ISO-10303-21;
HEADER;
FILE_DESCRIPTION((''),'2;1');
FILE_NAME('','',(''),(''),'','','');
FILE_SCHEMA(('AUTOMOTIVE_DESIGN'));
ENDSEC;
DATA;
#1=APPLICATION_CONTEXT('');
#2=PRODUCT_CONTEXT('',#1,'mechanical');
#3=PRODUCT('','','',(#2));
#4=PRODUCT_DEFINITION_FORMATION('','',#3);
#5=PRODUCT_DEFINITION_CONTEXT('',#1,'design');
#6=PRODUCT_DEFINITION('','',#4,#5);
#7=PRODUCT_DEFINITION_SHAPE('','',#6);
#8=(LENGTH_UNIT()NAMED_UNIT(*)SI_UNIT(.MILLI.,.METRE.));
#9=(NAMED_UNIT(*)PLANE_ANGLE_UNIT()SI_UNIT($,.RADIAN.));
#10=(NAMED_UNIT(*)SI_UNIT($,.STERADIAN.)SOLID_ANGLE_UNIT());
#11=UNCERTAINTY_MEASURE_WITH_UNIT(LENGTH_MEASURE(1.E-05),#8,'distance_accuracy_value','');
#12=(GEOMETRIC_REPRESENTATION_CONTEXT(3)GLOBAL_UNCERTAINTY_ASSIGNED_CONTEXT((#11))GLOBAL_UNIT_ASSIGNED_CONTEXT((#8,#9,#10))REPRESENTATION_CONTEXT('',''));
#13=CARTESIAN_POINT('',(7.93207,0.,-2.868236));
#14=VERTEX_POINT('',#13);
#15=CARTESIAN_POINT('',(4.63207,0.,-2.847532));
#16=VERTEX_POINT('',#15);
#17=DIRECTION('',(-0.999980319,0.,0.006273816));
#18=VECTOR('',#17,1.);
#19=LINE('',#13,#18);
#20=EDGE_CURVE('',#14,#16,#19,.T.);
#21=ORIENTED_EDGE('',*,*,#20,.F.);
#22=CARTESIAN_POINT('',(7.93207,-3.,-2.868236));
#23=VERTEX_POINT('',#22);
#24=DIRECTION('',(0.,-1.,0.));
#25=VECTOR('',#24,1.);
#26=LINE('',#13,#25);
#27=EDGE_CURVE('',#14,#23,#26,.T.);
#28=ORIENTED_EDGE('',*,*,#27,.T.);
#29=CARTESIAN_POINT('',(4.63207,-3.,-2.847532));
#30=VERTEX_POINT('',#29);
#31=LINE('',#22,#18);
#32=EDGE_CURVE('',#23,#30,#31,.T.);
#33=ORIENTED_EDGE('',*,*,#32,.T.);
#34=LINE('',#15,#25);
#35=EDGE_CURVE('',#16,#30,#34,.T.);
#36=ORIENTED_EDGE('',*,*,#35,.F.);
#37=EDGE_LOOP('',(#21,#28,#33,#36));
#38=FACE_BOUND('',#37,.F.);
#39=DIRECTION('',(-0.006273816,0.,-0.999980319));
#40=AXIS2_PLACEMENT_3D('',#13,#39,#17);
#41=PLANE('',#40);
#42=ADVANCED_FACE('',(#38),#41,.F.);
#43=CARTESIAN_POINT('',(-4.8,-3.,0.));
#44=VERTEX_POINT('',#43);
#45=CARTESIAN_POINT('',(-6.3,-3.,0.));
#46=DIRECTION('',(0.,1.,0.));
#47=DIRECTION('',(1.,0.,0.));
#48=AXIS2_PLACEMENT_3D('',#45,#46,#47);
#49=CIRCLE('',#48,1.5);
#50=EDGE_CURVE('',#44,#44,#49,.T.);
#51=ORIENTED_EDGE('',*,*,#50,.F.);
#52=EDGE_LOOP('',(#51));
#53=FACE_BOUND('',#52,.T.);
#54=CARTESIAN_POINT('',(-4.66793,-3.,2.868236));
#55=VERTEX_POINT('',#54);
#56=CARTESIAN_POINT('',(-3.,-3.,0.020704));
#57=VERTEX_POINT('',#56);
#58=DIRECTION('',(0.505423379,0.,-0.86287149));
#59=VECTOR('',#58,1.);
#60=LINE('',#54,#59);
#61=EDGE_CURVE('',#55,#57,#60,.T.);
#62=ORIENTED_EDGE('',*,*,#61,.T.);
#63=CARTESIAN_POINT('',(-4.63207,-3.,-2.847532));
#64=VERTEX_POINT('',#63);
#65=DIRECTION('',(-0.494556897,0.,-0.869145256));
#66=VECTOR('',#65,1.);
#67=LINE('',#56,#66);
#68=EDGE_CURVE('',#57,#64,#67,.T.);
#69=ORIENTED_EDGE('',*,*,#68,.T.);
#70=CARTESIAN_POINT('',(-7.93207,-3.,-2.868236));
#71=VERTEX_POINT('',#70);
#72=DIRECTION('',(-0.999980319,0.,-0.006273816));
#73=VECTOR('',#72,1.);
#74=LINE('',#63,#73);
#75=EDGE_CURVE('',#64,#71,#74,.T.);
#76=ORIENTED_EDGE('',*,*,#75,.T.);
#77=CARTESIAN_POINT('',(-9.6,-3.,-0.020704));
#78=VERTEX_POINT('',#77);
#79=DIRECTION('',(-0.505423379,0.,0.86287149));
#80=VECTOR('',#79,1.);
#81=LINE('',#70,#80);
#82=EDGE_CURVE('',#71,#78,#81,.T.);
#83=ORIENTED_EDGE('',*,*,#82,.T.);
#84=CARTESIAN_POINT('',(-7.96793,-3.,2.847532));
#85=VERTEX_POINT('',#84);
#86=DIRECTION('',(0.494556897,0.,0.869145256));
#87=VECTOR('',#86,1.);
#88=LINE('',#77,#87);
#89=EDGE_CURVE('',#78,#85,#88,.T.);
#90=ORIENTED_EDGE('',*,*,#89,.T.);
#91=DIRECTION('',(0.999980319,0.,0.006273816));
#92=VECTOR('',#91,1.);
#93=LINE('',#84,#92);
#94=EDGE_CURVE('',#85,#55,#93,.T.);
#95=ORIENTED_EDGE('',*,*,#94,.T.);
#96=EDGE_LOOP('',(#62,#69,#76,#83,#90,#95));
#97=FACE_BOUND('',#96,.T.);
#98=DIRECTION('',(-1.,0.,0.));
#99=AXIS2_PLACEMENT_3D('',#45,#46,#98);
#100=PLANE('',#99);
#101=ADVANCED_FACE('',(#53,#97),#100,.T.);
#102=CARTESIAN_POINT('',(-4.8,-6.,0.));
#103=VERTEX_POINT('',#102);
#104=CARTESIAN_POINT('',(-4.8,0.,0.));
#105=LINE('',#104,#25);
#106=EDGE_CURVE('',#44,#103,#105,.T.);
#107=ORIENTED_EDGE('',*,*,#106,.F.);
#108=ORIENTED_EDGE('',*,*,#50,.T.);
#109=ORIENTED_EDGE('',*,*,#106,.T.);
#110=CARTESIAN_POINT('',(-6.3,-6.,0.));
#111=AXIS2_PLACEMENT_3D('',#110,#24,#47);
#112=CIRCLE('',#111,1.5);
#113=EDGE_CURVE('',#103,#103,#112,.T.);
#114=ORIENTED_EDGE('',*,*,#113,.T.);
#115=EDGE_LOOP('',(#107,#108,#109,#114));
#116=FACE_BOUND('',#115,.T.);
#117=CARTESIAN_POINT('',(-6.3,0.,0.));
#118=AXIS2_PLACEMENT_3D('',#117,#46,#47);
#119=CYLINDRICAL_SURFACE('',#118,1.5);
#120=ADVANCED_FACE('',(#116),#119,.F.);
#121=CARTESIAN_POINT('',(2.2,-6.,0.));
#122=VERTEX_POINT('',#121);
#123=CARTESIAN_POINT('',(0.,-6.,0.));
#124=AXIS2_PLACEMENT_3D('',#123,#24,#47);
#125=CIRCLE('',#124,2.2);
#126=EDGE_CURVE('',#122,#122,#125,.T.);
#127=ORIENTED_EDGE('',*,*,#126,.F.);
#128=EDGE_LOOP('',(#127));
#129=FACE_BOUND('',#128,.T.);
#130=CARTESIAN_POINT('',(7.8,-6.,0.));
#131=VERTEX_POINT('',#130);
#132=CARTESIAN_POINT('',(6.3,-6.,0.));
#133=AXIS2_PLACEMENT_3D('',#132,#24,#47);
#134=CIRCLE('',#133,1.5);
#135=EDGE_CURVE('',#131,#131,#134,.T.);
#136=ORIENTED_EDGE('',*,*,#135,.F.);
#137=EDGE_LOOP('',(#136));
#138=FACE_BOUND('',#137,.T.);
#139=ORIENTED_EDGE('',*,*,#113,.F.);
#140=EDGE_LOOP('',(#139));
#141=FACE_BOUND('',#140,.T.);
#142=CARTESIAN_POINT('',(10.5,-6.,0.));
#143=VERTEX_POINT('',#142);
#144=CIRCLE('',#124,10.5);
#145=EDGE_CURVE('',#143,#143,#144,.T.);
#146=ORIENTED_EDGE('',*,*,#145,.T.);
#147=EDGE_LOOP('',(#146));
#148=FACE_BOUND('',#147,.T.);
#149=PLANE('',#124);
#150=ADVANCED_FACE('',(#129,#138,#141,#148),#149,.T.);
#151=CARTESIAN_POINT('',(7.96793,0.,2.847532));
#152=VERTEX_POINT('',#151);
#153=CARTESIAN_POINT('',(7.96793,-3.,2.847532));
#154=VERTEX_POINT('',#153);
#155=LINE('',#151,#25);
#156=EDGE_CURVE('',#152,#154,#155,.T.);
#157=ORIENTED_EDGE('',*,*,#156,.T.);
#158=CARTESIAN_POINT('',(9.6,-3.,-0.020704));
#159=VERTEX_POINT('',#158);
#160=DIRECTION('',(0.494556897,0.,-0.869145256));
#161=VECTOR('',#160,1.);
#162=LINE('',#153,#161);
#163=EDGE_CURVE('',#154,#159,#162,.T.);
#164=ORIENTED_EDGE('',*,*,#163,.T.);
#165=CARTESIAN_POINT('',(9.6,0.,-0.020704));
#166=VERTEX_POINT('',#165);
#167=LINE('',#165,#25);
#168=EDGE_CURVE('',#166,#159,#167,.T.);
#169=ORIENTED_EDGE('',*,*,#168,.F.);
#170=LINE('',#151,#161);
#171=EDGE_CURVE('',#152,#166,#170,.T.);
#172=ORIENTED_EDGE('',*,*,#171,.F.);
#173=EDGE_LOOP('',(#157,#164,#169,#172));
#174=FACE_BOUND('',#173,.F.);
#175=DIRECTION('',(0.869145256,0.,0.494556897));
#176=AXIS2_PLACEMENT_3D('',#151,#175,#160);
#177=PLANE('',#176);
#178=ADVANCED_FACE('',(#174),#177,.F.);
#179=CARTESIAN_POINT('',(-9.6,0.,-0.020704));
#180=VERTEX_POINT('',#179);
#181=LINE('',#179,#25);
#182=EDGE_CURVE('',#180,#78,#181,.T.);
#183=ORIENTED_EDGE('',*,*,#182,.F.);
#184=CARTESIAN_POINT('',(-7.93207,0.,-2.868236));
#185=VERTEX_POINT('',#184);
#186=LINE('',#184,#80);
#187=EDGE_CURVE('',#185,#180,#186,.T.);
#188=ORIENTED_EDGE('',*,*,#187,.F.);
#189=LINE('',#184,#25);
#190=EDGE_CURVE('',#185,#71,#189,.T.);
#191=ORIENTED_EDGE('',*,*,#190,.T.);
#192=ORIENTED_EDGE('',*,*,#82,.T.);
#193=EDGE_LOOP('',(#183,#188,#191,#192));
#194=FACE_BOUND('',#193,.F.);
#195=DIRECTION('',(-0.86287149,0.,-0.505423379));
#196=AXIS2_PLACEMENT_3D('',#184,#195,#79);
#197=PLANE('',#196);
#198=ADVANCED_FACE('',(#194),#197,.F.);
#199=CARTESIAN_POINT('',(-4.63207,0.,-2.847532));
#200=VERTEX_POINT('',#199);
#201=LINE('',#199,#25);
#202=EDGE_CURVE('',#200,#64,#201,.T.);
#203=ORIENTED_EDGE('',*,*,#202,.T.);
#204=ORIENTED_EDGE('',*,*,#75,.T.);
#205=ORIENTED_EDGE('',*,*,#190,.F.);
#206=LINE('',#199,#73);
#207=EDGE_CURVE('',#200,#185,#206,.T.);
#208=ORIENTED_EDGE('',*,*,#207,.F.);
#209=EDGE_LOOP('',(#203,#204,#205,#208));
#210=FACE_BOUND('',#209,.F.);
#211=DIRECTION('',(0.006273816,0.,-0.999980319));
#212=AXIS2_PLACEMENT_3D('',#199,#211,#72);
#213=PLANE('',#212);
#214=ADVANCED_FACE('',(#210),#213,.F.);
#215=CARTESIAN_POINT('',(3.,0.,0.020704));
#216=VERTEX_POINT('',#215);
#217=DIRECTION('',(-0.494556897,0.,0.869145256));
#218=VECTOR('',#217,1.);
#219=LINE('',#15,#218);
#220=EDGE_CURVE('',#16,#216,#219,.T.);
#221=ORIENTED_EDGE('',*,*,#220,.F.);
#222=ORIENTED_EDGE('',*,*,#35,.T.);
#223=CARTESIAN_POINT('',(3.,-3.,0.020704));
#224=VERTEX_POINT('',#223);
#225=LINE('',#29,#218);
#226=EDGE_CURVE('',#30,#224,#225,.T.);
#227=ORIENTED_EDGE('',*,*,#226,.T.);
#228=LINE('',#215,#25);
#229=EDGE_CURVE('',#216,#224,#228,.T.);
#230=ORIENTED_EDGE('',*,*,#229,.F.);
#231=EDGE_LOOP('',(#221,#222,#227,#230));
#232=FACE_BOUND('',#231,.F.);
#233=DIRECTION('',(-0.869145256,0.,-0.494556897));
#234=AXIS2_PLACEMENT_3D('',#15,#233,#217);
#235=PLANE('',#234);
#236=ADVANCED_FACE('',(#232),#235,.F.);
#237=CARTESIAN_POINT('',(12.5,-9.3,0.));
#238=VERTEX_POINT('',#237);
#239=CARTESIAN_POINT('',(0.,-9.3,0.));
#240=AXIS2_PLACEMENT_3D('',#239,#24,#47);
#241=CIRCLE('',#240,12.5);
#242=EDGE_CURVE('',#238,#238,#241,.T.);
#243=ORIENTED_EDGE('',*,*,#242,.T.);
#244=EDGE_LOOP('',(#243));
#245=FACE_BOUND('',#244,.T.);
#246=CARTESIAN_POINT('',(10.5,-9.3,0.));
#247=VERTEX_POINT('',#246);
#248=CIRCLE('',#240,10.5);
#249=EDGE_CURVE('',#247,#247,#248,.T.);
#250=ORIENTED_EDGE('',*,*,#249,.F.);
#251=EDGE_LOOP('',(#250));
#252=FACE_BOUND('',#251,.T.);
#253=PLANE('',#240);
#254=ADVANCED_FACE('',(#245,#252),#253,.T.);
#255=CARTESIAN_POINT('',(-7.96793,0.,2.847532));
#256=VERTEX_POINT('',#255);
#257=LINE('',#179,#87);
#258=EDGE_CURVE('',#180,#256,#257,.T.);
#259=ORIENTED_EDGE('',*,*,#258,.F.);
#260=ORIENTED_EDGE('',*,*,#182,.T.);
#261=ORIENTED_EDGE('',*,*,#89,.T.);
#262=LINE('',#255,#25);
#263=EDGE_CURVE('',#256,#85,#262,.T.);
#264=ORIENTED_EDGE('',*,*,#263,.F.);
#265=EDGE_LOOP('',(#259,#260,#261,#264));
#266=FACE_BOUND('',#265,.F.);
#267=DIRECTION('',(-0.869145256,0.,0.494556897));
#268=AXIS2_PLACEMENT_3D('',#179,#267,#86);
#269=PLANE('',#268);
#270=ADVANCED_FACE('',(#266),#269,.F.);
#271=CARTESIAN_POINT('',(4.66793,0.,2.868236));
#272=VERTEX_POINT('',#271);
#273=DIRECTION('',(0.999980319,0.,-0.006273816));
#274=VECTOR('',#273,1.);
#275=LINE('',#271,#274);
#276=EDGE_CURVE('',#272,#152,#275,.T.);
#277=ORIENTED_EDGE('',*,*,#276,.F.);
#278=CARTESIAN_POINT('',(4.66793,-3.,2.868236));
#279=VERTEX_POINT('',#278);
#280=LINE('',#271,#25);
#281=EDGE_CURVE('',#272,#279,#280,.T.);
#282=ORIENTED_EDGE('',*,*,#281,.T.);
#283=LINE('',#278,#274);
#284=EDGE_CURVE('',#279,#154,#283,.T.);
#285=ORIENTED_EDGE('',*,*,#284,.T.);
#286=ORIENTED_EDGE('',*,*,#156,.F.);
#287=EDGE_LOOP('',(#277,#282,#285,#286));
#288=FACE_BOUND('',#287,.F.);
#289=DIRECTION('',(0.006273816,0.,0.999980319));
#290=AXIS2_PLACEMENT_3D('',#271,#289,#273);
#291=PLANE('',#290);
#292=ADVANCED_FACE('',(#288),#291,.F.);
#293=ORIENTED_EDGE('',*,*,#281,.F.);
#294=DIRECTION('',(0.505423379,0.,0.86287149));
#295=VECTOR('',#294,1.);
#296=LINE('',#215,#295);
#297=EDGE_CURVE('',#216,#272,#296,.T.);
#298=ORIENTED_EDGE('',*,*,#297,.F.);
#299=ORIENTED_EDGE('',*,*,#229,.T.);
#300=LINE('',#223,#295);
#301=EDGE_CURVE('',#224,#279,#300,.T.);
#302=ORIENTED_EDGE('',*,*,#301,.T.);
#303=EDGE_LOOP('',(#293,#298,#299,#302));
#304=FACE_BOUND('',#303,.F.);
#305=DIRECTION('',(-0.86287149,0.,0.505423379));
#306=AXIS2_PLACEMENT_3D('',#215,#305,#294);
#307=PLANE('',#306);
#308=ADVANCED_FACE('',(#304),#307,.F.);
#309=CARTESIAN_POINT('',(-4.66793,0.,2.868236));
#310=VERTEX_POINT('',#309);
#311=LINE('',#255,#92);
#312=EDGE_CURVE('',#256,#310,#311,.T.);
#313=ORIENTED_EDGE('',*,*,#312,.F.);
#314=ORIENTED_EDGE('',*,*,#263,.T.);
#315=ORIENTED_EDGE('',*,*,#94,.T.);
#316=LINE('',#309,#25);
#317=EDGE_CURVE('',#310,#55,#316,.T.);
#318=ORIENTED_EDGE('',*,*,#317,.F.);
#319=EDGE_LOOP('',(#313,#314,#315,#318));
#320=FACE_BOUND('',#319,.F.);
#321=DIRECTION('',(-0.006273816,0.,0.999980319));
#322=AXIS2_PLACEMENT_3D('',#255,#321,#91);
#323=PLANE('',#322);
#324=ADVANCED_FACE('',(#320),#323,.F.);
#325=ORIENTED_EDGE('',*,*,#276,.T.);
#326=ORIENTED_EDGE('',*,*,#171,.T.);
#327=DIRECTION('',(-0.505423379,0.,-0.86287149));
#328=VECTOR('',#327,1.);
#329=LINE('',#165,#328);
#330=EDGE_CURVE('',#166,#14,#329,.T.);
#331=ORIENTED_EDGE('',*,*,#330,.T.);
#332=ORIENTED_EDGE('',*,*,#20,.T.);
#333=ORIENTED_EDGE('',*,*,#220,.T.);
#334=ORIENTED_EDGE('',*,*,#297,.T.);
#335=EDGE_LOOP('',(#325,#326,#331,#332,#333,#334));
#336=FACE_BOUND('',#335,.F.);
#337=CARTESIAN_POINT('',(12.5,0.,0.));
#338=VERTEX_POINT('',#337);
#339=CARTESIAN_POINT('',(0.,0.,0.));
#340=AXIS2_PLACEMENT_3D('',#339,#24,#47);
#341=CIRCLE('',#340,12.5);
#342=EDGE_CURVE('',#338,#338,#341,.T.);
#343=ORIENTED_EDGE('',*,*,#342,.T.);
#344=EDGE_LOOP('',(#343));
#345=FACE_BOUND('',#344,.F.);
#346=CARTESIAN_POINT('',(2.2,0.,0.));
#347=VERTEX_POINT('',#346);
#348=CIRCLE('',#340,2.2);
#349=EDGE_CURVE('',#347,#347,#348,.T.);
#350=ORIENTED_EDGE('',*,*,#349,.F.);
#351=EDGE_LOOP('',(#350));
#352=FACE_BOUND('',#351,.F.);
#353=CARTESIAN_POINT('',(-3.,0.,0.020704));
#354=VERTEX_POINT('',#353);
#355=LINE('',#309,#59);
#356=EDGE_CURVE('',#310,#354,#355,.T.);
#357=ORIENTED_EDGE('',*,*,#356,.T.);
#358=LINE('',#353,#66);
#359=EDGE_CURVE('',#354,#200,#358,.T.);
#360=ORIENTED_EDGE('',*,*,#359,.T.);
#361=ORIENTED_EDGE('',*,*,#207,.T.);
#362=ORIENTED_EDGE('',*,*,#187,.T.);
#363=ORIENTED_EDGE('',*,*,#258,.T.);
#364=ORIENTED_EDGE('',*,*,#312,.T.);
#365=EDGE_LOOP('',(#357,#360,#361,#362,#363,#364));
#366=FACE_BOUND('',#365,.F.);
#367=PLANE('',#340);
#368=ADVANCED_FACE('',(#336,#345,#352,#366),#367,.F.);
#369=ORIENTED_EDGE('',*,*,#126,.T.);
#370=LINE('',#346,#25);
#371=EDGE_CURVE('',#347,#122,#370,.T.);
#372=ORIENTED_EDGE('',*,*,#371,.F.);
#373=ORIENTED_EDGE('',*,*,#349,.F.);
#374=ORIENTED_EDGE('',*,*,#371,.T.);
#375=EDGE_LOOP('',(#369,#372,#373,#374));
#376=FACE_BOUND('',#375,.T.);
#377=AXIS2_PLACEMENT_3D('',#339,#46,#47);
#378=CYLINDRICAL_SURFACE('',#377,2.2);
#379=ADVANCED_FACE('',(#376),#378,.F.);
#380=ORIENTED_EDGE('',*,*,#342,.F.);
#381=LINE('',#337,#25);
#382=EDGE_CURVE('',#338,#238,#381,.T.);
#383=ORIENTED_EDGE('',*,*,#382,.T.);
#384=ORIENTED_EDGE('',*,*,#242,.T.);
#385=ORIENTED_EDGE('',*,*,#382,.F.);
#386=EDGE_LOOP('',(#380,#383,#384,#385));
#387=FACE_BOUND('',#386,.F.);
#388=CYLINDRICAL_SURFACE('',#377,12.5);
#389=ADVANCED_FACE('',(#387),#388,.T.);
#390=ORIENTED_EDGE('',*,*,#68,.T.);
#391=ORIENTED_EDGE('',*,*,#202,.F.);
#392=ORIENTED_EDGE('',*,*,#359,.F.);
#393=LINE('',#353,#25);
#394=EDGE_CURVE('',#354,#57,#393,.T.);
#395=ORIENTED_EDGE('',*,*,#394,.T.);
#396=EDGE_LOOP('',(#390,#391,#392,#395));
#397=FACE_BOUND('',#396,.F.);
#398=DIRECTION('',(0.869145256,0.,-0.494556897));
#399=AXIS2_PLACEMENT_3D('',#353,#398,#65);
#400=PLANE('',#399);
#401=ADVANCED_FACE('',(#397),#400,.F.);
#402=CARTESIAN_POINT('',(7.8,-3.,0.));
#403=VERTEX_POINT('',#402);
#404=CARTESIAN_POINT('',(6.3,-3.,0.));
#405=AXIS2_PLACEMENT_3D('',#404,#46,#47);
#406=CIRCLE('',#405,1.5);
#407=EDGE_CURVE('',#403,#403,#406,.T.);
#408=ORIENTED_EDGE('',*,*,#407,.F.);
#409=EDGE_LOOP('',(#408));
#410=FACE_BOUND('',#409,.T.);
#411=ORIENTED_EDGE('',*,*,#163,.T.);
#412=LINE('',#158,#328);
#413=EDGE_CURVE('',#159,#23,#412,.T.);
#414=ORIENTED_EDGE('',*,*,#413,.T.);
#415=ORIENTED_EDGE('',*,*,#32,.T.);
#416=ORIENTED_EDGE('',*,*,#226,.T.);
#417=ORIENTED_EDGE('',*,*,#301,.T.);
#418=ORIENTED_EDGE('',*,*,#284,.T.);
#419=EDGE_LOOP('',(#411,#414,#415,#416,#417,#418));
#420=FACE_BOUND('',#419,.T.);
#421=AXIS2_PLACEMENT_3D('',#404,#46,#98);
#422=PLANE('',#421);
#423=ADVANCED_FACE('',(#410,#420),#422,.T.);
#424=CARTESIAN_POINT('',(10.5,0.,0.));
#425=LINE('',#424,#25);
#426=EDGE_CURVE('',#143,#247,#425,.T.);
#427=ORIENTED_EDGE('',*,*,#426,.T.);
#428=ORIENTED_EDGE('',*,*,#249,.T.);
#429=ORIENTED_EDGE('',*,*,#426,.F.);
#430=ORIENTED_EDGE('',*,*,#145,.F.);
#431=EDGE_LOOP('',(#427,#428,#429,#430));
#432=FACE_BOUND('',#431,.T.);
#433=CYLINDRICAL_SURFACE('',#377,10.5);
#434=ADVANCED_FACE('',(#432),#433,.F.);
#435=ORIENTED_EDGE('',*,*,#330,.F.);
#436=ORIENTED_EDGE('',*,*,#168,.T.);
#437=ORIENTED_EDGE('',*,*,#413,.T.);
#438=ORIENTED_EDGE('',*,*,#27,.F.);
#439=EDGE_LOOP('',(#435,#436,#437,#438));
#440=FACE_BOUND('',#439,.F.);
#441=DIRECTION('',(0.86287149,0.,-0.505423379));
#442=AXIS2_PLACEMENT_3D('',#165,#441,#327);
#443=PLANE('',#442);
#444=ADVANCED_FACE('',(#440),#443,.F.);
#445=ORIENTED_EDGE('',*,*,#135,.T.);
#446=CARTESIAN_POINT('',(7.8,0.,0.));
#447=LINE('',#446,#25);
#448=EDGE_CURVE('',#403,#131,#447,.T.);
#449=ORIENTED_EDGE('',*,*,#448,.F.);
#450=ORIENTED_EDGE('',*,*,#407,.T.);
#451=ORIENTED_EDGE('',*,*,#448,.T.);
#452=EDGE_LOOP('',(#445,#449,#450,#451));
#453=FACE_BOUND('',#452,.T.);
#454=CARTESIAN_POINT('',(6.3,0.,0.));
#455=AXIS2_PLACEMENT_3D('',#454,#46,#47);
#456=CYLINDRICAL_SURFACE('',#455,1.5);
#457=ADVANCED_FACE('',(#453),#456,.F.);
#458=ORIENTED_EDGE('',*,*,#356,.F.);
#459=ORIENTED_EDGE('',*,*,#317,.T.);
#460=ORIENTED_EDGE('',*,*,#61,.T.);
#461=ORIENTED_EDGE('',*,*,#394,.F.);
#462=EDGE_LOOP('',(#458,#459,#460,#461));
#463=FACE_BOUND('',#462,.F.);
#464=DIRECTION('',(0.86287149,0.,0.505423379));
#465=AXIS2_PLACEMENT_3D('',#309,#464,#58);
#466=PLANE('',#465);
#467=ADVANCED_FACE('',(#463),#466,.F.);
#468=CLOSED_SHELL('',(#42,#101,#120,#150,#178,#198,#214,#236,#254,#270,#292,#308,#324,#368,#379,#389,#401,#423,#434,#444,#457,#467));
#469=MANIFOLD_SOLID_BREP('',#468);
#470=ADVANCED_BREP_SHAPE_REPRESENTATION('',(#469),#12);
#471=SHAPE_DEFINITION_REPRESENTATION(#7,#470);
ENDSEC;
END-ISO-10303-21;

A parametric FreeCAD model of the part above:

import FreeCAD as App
import Part
import Sketcher
from FreeCAD import Vector


def add_polygon(sketch, points):
    """Adds a closed chain of lines whose ends are joined by coincident constraints."""
    first, n = sketch.GeometryCount, len(points)
    for a, b in zip(points, points[1:] + points[:1]):
        sketch.addGeometry(Part.LineSegment(App.Vector(*a, 0), App.Vector(*b, 0)), False)
    for i in range(n):
        sketch.addConstraint(Sketcher.Constraint("Coincident", first + i, 2, first + (i + 1) % n, 1))

doc = App.newDocument("Part")
params = doc.addObject("Spreadsheet::Sheet", "Params")
for row, (alias, value) in enumerate([
    ("sketch1_diameter", "25 mm"),
    ("sketch1_diameter2", "21 mm"),
    ("pad1_length", "9.3 mm"),
    ("sketch2_diameter", "21 mm"),
    ("sketch2_diameter2", "3 mm"),
    ("sketch2_diameter3", "4.4 mm"),
    ("pad2_length", "6 mm"),
    ("sketch3_diameter", "3 mm"),
    ("pocket1_length", "3 mm"),
], start=1):
    params.set(f"A{row}", alias)
    params.set(f"B{row}", "=" + value)
    params.setAlias(f"B{row}", alias)

body = doc.addObject("PartDesign::Body", "Body")

# Sketch on XZ plane
sketch1 = doc.addObject("Sketcher::SketchObject", "Sketch")
body.addObject(sketch1)
sketch1.AttachmentSupport = (doc.XZ_Plane, [""])
sketch1.MapMode = "FlatFace"
sketch1.addGeometry([
    Part.Circle(Vector(0, 0, 0), Vector(0, 0, 1), 12),
    Part.Circle(Vector(0, 0, 0), Vector(0, 0, 1), 10),
], False)
sketch1.addConstraint([
    Sketcher.Constraint("Coincident", 0, 3, -1, 1),
    Sketcher.Constraint("Coincident", 1, 3, -1, 1),
    Sketcher.Constraint("Diameter", 0, 25.0),
    Sketcher.Constraint("Diameter", 1, 21.0),
])
sketch1.setExpression("Constraints[2]", "Params.sketch1_diameter")
sketch1.setExpression("Constraints[3]", "Params.sketch1_diameter2")
pad1 = doc.addObject("PartDesign::Pad", "Pad")
body.addObject(pad1)
pad1.Profile = sketch1
pad1.setExpression("Length", "Params.pad1_length")

# Sketch on XZ plane
sketch2 = doc.addObject("Sketcher::SketchObject", "Sketch001")
body.addObject(sketch2)
sketch2.AttachmentSupport = (doc.XZ_Plane, [""])
sketch2.MapMode = "FlatFace"
sketch2.addGeometry([
    Part.Circle(Vector(0, 0, 0), Vector(0, 0, 1), 10.5),
    Part.Circle(Vector(-6.3, 0, 0), Vector(0, 0, 1), 1.5),
    Part.Circle(Vector(0, 0, 0), Vector(0, 0, 1), 2.2),
    Part.Circle(Vector(6.3, 0, 0), Vector(0, 0, 1), 1.5),
], False)
sketch2.addConstraint([
    Sketcher.Constraint("Coincident", 0, 3, -1, 1),
    Sketcher.Constraint("Coincident", 2, 3, -1, 1),
    Sketcher.Constraint("Equal", 1, 3),
    Sketcher.Constraint("Symmetric", 1, 3, 3, 3, -1, 1),
    Sketcher.Constraint("PointOnObject", 1, 3, -1),
    Sketcher.Constraint("Diameter", 0, 21.0),
    Sketcher.Constraint("Diameter", 1, 3.0),
    Sketcher.Constraint("Diameter", 2, 4.4),
    Sketcher.Constraint("DistanceX", 1, 3, -1, 1, 6.3),
])
sketch2.setExpression("Constraints[5]", "Params.sketch2_diameter")
sketch2.setExpression("Constraints[6]", "Params.sketch2_diameter2")
sketch2.setExpression("Constraints[7]", "Params.sketch2_diameter3")
pad2 = doc.addObject("PartDesign::Pad", "Pad001")
body.addObject(pad2)
pad2.Profile = sketch2
pad2.setExpression("Length", "Params.pad2_length")

# Sketch on XZ plane
sketch3 = doc.addObject("Sketcher::SketchObject", "Sketch002")
body.addObject(sketch3)
sketch3.AttachmentSupport = (doc.XZ_Plane, [""])
sketch3.MapMode = "FlatFace"
add_polygon(sketch3, [(4.6, -2.8), (3, 0), (4.7, 2.9), (8, 2.8), (9.6, 0), (7.9, -2.9)])  # lines 0-5
sketch3.addGeometry(Part.Circle(Vector(6.3, 0, 0), Vector(0, 0, 1), 1.5), False)  # 6
add_polygon(sketch3, [(-7.9, -2.9), (-9.6, 0), (-8, 2.8), (-4.7, 2.9), (-3, 0), (-4.6, -2.8)])  # lines 7-12
sketch3.addGeometry(Part.Circle(Vector(-6.3, 0, 0), Vector(0, 0, 1), 1.5), False)  # 13
sketch3.addConstraint([
    Sketcher.Constraint("Equal", 6, 13),
    Sketcher.Constraint("Symmetric", 6, 3, 13, 3, -1, 1),
    Sketcher.Constraint("Symmetric", 3, 2, 7, 2, -2),
    Sketcher.Constraint("Symmetric", 2, 2, 8, 2, -2),
    Sketcher.Constraint("Symmetric", 1, 2, 9, 2, -2),
    Sketcher.Constraint("Symmetric", 0, 2, 10, 2, -2),
    Sketcher.Constraint("Symmetric", 5, 2, 11, 2, -2),
    Sketcher.Constraint("Symmetric", 4, 2, 12, 2, -2),
    Sketcher.Constraint("PointOnObject", 6, 3, -1),
    Sketcher.Constraint("Parallel", 0, 3),
    Sketcher.Constraint("Parallel", 1, 4),
    Sketcher.Constraint("Parallel", 2, 5),
    Sketcher.Constraint("Equal", 0, 1),
    Sketcher.Constraint("Equal", 1, 2),
    Sketcher.Constraint("Equal", 2, 3),
    Sketcher.Constraint("Diameter", 6, 3.0),
    Sketcher.Constraint("DistanceX", -1, 1, 0, 2, 3.0),
    Sketcher.Constraint("DistanceX", -1, 1, 6, 3, 6.3),
    Sketcher.Constraint("DistanceX", -1, 1, 3, 2, 9.6),
    Sketcher.Constraint("DistanceX", 1, 2, 2, 2, 3.3),
    Sketcher.Constraint("DistanceX", -1, 1, 1, 2, 4.66793),
    Sketcher.Constraint("DistanceY", 0, 2, 2, 2, 2.826828),
    Sketcher.Constraint("DistanceY", -1, 1, 0, 2, 0.020704),
])
sketch3.setExpression("Constraints[27]", "Params.sketch3_diameter")
pocket1 = doc.addObject("PartDesign::Pocket", "Pocket")
body.addObject(pocket1)
pocket1.Profile = sketch3
pocket1.setExpression("Length", "Params.pocket1_length")
pocket1.Reversed = True

doc.recompute()
